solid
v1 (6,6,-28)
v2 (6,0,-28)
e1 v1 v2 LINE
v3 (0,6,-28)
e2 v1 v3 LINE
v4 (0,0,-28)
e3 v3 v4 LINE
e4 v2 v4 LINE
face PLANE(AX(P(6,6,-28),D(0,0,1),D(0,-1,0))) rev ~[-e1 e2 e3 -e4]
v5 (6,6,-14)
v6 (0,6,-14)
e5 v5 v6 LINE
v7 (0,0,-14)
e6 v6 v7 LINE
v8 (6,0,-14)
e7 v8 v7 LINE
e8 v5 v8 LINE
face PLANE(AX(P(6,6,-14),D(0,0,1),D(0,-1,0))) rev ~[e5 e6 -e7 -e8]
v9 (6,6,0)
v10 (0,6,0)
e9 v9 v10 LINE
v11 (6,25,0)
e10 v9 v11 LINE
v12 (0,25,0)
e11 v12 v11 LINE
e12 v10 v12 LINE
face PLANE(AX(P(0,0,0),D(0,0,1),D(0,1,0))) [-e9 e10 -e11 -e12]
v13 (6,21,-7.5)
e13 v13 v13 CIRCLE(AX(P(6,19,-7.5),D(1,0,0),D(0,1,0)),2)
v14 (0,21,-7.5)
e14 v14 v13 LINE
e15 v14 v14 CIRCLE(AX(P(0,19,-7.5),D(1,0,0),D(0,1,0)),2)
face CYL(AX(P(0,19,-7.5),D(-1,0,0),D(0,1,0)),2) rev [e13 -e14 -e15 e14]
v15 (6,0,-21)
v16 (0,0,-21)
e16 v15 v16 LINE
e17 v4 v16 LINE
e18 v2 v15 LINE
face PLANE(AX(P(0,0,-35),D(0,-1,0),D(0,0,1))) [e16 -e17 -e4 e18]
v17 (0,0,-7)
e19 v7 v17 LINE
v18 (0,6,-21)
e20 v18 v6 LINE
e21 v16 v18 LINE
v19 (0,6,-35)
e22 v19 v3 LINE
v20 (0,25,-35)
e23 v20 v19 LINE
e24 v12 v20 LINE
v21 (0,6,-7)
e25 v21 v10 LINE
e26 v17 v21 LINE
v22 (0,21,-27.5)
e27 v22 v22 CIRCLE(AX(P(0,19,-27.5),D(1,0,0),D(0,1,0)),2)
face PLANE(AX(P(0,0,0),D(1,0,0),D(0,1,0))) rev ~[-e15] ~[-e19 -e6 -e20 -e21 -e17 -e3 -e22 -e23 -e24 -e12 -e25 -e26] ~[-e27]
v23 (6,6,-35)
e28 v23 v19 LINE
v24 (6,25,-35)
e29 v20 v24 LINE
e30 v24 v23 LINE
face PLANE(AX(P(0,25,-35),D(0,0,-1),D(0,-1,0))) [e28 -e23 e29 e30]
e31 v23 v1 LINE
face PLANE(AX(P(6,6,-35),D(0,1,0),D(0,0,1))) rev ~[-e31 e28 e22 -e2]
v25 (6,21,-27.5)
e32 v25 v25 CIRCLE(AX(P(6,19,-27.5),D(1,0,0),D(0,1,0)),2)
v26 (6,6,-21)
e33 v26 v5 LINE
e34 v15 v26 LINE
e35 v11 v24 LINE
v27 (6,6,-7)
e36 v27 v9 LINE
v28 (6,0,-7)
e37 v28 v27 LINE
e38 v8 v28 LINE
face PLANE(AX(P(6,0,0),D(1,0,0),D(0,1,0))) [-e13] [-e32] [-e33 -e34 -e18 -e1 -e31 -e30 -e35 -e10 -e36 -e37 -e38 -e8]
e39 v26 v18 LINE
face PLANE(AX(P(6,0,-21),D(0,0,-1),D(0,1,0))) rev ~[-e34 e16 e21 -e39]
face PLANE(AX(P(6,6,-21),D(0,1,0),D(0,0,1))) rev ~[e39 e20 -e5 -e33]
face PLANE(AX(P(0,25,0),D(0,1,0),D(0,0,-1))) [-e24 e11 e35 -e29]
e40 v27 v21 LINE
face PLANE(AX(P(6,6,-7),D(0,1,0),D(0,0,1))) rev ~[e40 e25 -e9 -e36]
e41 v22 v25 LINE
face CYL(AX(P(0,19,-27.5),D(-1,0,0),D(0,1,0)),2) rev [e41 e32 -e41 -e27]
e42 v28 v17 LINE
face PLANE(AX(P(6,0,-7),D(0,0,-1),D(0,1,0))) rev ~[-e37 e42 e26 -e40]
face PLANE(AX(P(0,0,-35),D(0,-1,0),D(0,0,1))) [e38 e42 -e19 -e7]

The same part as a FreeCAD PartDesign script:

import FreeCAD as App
import Part
import Sketcher
from FreeCAD import Vector

doc = App.newDocument("Part")
body = doc.addObject("PartDesign::Body", "Body")

sketch1 = doc.addObject("Sketcher::SketchObject", "Sketch")
body.addObject(sketch1)
sketch1.AttachmentSupport = (doc.YZ_Plane, [""])
sketch1.MapMode = "FlatFace"
sketch1.addGeometry([
    Part.LineSegment(Vector(25, 0, 0), Vector(0, 0, 0)),
    Part.LineSegment(Vector(0, 0, 0), Vector(0, -35, 0)),
    Part.LineSegment(Vector(0, -35, 0), Vector(25, -35, 0)),
    Part.LineSegment(Vector(25, -35, 0), Vector(25, 0, 0)),
    Part.Circle(Vector(19, -27.5, 0), Vector(0, 0, 1), 2),
    Part.Circle(Vector(19, -7.5, 0), Vector(0, 0, 1), 2),
], False)
sketch1.addConstraint([
    Sketcher.Constraint("Coincident", 0, 2, 1, 1),
    Sketcher.Constraint("Coincident", 1, 2, 2, 1),
    Sketcher.Constraint("Coincident", 2, 2, 3, 1),
    Sketcher.Constraint("Coincident", 3, 2, 0, 1),
    Sketcher.Constraint("Horizontal", 0),
    Sketcher.Constraint("Vertical", 1),
    Sketcher.Constraint("Horizontal", 2),
    Sketcher.Constraint("Vertical", 3),
    Sketcher.Constraint("Coincident", 0, 2, -1, 1),
    Sketcher.Constraint("Equal", 4, 5),
    Sketcher.Constraint("Vertical", 4, 3, 5, 3),
    Sketcher.Constraint("Diameter", 4, 4.0),
    Sketcher.Constraint("DistanceX", 0, 2, 0, 1, 25.0),
    Sketcher.Constraint("DistanceY", 1, 2, 1, 1, 35.0),
    Sketcher.Constraint("DistanceX", -1, 1, 4, 3, 19.0),
    Sketcher.Constraint("DistanceY", 4, 3, 5, 3, 20.0),
    Sketcher.Constraint("DistanceY", 4, 3, -1, 1, 27.5),
])
pad1 = doc.addObject("PartDesign::Pad", "Pad")
body.addObject(pad1)
pad1.Profile = sketch1
pad1.Length = 6

sketch2 = doc.addObject("Sketcher::SketchObject", "Sketch001")
body.addObject(sketch2)
sketch2.AttachmentSupport = (doc.YZ_Plane, [""])
sketch2.MapMode = "FlatFace"
sketch2.AttachmentOffset = App.Placement(Vector(0, 0, 6), App.Rotation())
sketch2.addGeometry([
    Part.LineSegment(Vector(6, 0, 0), Vector(0, 0, 0)),
    Part.LineSegment(Vector(0, 0, 0), Vector(0, -7, 0)),
    Part.LineSegment(Vector(0, -7, 0), Vector(6, -7, 0)),
    Part.LineSegment(Vector(6, -7, 0), Vector(6, 0, 0)),
], False)
sketch2.addConstraint([
    Sketcher.Constraint("Coincident", 0, 2, 1, 1),
    Sketcher.Constraint("Coincident", 1, 2, 2, 1),
    Sketcher.Constraint("Coincident", 2, 2, 3, 1),
    Sketcher.Constraint("Coincident", 3, 2, 0, 1),
    Sketcher.Constraint("Horizontal", 0),
    Sketcher.Constraint("Vertical", 1),
    Sketcher.Constraint("Horizontal", 2),
    Sketcher.Constraint("Vertical", 3),
    Sketcher.Constraint("Coincident", 0, 2, -1, 1),
    Sketcher.Constraint("DistanceX", 0, 2, 0, 1, 6.0),
    Sketcher.Constraint("DistanceY", 1, 2, 1, 1, 7.0),
])
pocket1 = doc.addObject("PartDesign::Pocket", "Pocket")
body.addObject(pocket1)
pocket1.Profile = sketch2
pocket1.Length = 6
doc.recompute()

linearpattern = doc.addObject("PartDesign::LinearPattern", "LinearPattern")
body.addObject(linearpattern)
linearpattern.Originals = [pocket1]
linearpattern.Direction = (doc.Z_Axis, [""])
linearpattern.Mode = "offset"
linearpattern.Offset = 14
linearpattern.Occurrences = 3
linearpattern.Reversed = True
body.Tip = linearpattern

doc.recompute()
